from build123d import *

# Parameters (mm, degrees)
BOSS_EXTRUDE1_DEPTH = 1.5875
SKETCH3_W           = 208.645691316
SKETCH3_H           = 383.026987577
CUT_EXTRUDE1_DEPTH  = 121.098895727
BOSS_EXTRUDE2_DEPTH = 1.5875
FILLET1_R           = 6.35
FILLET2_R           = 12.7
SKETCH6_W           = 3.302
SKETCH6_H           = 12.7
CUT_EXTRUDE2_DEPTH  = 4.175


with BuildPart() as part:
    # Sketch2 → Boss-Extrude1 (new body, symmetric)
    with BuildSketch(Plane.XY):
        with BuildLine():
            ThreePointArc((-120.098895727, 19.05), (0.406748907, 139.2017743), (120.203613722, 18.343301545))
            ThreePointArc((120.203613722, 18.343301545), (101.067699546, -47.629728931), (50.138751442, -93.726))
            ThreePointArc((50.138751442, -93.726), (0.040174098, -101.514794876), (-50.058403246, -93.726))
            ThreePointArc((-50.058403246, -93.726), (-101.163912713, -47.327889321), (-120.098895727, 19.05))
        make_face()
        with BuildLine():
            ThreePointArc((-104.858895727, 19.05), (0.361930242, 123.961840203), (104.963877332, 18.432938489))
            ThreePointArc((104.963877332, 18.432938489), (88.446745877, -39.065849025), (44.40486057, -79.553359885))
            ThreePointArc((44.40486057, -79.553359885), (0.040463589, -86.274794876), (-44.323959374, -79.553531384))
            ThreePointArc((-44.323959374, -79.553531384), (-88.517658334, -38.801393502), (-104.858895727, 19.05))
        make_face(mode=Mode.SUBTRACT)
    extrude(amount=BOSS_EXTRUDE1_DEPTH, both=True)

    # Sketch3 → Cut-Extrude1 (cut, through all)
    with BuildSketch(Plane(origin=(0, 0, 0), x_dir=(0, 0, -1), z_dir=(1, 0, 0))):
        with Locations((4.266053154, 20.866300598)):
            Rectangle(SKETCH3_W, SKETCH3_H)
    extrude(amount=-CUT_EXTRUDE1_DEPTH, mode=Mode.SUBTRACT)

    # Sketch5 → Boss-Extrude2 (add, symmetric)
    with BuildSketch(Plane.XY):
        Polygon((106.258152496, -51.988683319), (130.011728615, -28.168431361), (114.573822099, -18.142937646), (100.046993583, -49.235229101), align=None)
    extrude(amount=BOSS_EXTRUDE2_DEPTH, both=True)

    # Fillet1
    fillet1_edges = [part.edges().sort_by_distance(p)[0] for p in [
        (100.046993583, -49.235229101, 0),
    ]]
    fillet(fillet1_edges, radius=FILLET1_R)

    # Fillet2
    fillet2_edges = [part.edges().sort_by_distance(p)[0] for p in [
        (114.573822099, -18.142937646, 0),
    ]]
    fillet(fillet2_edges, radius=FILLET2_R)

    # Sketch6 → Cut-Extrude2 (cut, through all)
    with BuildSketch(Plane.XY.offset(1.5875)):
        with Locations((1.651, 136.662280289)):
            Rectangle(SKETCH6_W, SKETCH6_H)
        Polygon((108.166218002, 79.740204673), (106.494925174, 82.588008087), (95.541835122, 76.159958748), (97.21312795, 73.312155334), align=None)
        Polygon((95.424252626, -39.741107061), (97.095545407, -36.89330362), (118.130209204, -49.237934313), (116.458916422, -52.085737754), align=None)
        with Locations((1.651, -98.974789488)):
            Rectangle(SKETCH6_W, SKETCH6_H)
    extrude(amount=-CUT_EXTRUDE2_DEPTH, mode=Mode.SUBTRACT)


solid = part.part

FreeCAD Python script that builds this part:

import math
import FreeCAD as App
import Part
import Sketcher
from FreeCAD import Vector
Q = App.Units.Quantity


def edges_at(feature, points):
    """Names of the edges that pass closest to the given points."""
    edges = feature.Shape.Edges
    near = lambda p: min(range(len(edges)), key=lambda i: edges[i].distToShape(Part.Vertex(*p))[0])
    return sorted({f"Edge{near(p) + 1}" for p in points})


def add_polygon(sketch, points):
    """Adds a closed chain of lines whose ends are joined by coincident constraints."""
    first, n = sketch.GeometryCount, len(points)
    for a, b in zip(points, points[1:] + points[:1]):
        sketch.addGeometry(Part.LineSegment(App.Vector(*a, 0), App.Vector(*b, 0)), False)
    for i in range(n):
        sketch.addConstraint(Sketcher.Constraint("Coincident", first + i, 2, first + (i + 1) % n, 1))

doc = App.newDocument("Part")
params = doc.addObject("Spreadsheet::Sheet", "Params")
for row, (alias, value) in enumerate([
    ("pad1_length", "0.125 in"),
    ("pad2_length", "0.125 in"),
    ("fillet_radius", "0.25 in"),
    ("fillet2_radius", "0.5 in"),
    ("sketch4_height", "0.5 in"),
    ("sketch4_length", "0.5 in"),
    ("sketch4_width", "0.13 in"),
    ("sketch4_length2", "0.13 in"),
], start=1):
    params.set(f"A{row}", alias)
    params.set(f"B{row}", "=" + value)
    params.setAlias(f"B{row}", alias)

body = doc.addObject("PartDesign::Body", "Body")

sketch1 = body.newObject("Sketcher::SketchObject", "Sketch")
sketch1.AttachmentSupport = (doc.getObject("XY_Plane"), [""])
sketch1.MapMode = "FlatFace"
sketch1.addGeometry(Part.ArcOfCircle(Part.Circle(Vector(0, 19, 0), Vector(0, 0, 1), 120), math.radians(0), math.radians(180)), False)
sketch1.addGeometry(Part.ArcOfCircle(Part.Circle(Vector(6, 19, 0), Vector(0, 0, 1), 126), math.radians(-180), math.radians(-116)), False)
sketch1.addGeometry(Part.ArcOfCircle(Part.Circle(Vector(0, 63, 0), Vector(0, 0, 1), 165), math.radians(-108), math.radians(-72)), False)
sketch1.addGeometry(Part.ArcOfCircle(Part.Circle(Vector(-6, 19, 0), Vector(0, 0, 1), 126), math.radians(-64), math.radians(0)), False)
sketch1.addGeometry(Part.ArcOfCircle(Part.Circle(Vector(0, 19, 0), Vector(0, 0, 1), 105), math.radians(0), math.radians(180)), False)
sketch1.addGeometry(Part.ArcOfCircle(Part.Circle(Vector(-6, 19, 0), Vector(0, 0, 1), 111), math.radians(-63), math.radians(0)), False)
sketch1.addGeometry(Part.ArcOfCircle(Part.Circle(Vector(0, 63, 0), Vector(0, 0, 1), 150), math.radians(-107), math.radians(-73)), False)
sketch1.addGeometry(Part.ArcOfCircle(Part.Circle(Vector(6, 19, 0), Vector(0, 0, 1), 111), math.radians(-180), math.radians(-117)), False)
sketch1.addConstraint(Sketcher.Constraint("Tangent", 0, 2, 1, 1))
sketch1.addConstraint(Sketcher.Constraint("Coincident", 1, 2, 2, 1))
sketch1.addConstraint(Sketcher.Constraint("Coincident", 2, 2, 3, 1))
sketch1.addConstraint(Sketcher.Constraint("Tangent", 3, 2, 0, 1))
sketch1.addConstraint(Sketcher.Constraint("Tangent", 4, 1, 5, 2))
sketch1.addConstraint(Sketcher.Constraint("Coincident", 5, 1, 6, 2))
sketch1.addConstraint(Sketcher.Constraint("Coincident", 6, 1, 7, 2))
sketch1.addConstraint(Sketcher.Constraint("Tangent", 7, 1, 4, 2))
sketch1.addConstraint(Sketcher.Constraint("Coincident", 4, 3, 0, 3))
sketch1.addConstraint(Sketcher.Constraint("Coincident", 5, 3, 3, 3))
sketch1.addConstraint(Sketcher.Constraint("Coincident", 6, 3, 2, 3))
sketch1.addConstraint(Sketcher.Constraint("Coincident", 7, 3, 1, 3))
sketch1.addConstraint(Sketcher.Constraint("Horizontal", 0, 3, 1, 3))
sketch1.addConstraint(Sketcher.Constraint("Horizontal", 1, 2, 2, 2))
sketch1.addConstraint(Sketcher.Constraint("DistanceY", -1, 1, 2, 3, Q("2.5 in")))
sketch1.addConstraint(Sketcher.Constraint("DistanceX", 0, 2, 7, 1, Q("0.6 in")))
sketch1.addConstraint(Sketcher.Constraint("DistanceY", -1, 1, 0, 3, Q("0.75 in")))
sketch1.addConstraint(Sketcher.Constraint("DistanceY", 1, 2, -1, 1, Q("3.69 in")))
sketch1.addConstraint(Sketcher.Constraint("Radius", 0, Q("120.152294 mm")))
sketch1.addConstraint(Sketcher.Constraint("Radius", 1, Q("125.813627 mm")))
sketch1.addConstraint(Sketcher.Constraint("Radius", 2, Q("165.014795 mm")))
sketch1.addConstraint(Sketcher.Constraint("Radius", 3, Q("125.846414 mm")))
sketch1.addConstraint(Sketcher.Constraint("Radius", 6, Q("149.774795 mm")))
sketch1.addConstraint(Sketcher.Constraint("DistanceX", -1, 1, 0, 3, Q("0.053398 mm")))
pad1 = body.newObject("PartDesign::Pad", "Pad")
pad1.Profile = sketch1
pad1.setExpression("Length", "Params.pad1_length")
pad1.Midplane = True

sketch2 = body.newObject("Sketcher::SketchObject", "Sketch001")
sketch2.AttachmentSupport = (doc.getObject("YZ_Plane"), [""])
sketch2.MapMode = "FlatFace"
add_polygon(sketch2, [(212, 100), (-171, 100), (-171, -109), (212, -109)])
sketch2.addConstraint(Sketcher.Constraint("Horizontal", 0))
sketch2.addConstraint(Sketcher.Constraint("Vertical", 1))
sketch2.addConstraint(Sketcher.Constraint("Horizontal", 2))
sketch2.addConstraint(Sketcher.Constraint("Vertical", 3))
sketch2.addConstraint(Sketcher.Constraint("DistanceY", 1, 2, 1, 1, Q("208.645691 mm")))
sketch2.addConstraint(Sketcher.Constraint("DistanceY", 1, 2, -1, 1, Q("108.588899 mm")))
sketch2.addConstraint(Sketcher.Constraint("DistanceX", 0, 2, 0, 1, Q("383.026988 mm")))
sketch2.addConstraint(Sketcher.Constraint("DistanceX", 0, 2, -1, 1, Q("170.647193 mm")))
pocket1 = body.newObject("PartDesign::Pocket", "Pocket")
pocket1.Profile = sketch2
pocket1.Type = "ThroughAll"

sketch3 = body.newObject("Sketcher::SketchObject", "Sketch002")
sketch3.AttachmentSupport = (doc.getObject("XY_Plane"), [""])
sketch3.MapMode = "FlatFace"
add_polygon(sketch3, [(106, -52), (130, -28), (115, -18), (100, -49)])
sketch3.addConstraint(Sketcher.Constraint("Angle", 1, Q("147 deg")))
sketch3.addConstraint(Sketcher.Constraint("Distance", 2, Q("34.318498 mm")))
sketch3.addConstraint(Sketcher.Constraint("Distance", 0, Q("33.639809 mm")))
sketch3.addConstraint(Sketcher.Constraint("DistanceX", -1, 1, 0, 2, Q("130.011729 mm")))
sketch3.addConstraint(Sketcher.Constraint("DistanceY", 0, 2, -1, 1, Q("28.168431 mm")))
sketch3.addConstraint(Sketcher.Constraint("DistanceY", 2, 2, -1, 1, Q("49.235229 mm")))
sketch3.addConstraint(Sketcher.Constraint("DistanceX", 2, 2, 1, 2, Q("14.526829 mm")))
sketch3.addConstraint(Sketcher.Constraint("DistanceX", 2, 2, 3, 2, Q("6.211159 mm")))
pad2 = body.newObject("PartDesign::Pad", "Pad001")
pad2.Profile = sketch3
pad2.setExpression("Length", "Params.pad2_length")
pad2.Midplane = True
doc.recompute()

fillet = body.newObject("PartDesign::Fillet", "Fillet")
fillet.Base = (pad2, edges_at(pad2, [(100.047, -49.235, 0)]))
fillet.setExpression("Radius", "Params.fillet_radius")
doc.recompute()

fillet2 = body.newObject("PartDesign::Fillet", "Fillet001")
fillet2.Base = (fillet, edges_at(fillet, [(114.574, -18.143, 0)]))
fillet2.setExpression("Radius", "Params.fillet2_radius")

sketch4 = body.newObject("Sketcher::SketchObject", "Sketch003")
sketch4.AttachmentSupport = (doc.getObject("XY_Plane"), [""])
sketch4.MapMode = "FlatFace"
sketch4.AttachmentOffset = App.Placement(Vector(0, 0, 0.0625 * 25.4), App.Rotation())
add_polygon(sketch4, [(0, 143), (0, 130.3), (3.3, 130.3), (3.3, 143)])
add_polygon(sketch4, [(108.2, 79.7), (106.5, 82.6), (95.5, 76.2), (97.2, 73.3)])
add_polygon(sketch4, [(97.1, -36.9), (95.4, -39.7), (116.5, -52.1), (118.1, -49.2)])
add_polygon(sketch4, [(0, -92.6), (0, -105.3), (3.3, -105.3), (3.3, -92.6)])
sketch4.addConstraint(Sketcher.Constraint("Vertical", 0))
sketch4.addConstraint(Sketcher.Constraint("Horizontal", 1))
sketch4.addConstraint(Sketcher.Constraint("Vertical", 2))
sketch4.addConstraint(Sketcher.Constraint("Horizontal", 3))
sketch4.addConstraint(Sketcher.Constraint("Vertical", 12))
sketch4.addConstraint(Sketcher.Constraint("Horizontal", 13))
sketch4.addConstraint(Sketcher.Constraint("Vertical", 14))
sketch4.addConstraint(Sketcher.Constraint("Horizontal", 15))
sketch4.addConstraint(Sketcher.Constraint("PointOnObject", 0, 2, -2))
sketch4.addConstraint(Sketcher.Constraint("PointOnObject", 12, 2, -2))
sketch4.addConstraint(Sketcher.Constraint("Perpendicular", 4, 5))
sketch4.addConstraint(Sketcher.Constraint("Perpendicular", 5, 6))
sketch4.addConstraint(Sketcher.Constraint("Perpendicular", 6, 7))
sketch4.addConstraint(Sketcher.Constraint("Perpendicular", 8, 9))
sketch4.addConstraint(Sketcher.Constraint("Perpendicular", 9, 10))
sketch4.addConstraint(Sketcher.Constraint("Perpendicular", 10, 11))
sketch4.addConstraint(Sketcher.Constraint("Vertical", 2, 2, 13, 2))
sketch4.addConstraint(Sketcher.Constraint("Equal", 2, 12))
sketch4.addConstraint(Sketcher.Constraint("Equal", 6, 8))
sketch4.addConstraint(Sketcher.Constraint("DistanceY", 0, 2, 0, 1, Q("0.5 in")))
sketch4.addConstraint(Sketcher.Constraint("Distance", 5, Q("0.5 in")))
sketch4.addConstraint(Sketcher.Constraint("DistanceX", 1, 1, 1, 2, Q("0.13 in")))
sketch4.addConstraint(Sketcher.Constraint("Distance", 4, Q("0.13 in")))
sketch4.addConstraint(Sketcher.Constraint("DistanceX", 7, 2, 9, 2, Q("8.292698 mm")))
sketch4.addConstraint(Sketcher.Constraint("DistanceY", -1, 1, 0, 2, Q("130.31228 mm")))
sketch4.addConstraint(Sketcher.Constraint("DistanceY", -1, 1, 4, 2, Q("82.588008 mm")))
sketch4.addConstraint(Sketcher.Constraint("DistanceY", -1, 1, 5, 2, Q("76.159959 mm")))
sketch4.addConstraint(Sketcher.Constraint("DistanceX", -1, 1, 7, 2, Q("108.166218 mm")))
sketch4.addConstraint(Sketcher.Constraint("DistanceX", -1, 1, 10, 2, Q("118.130209 mm")))
sketch4.addConstraint(Sketcher.Constraint("DistanceY", 12, 2, -1, 1, Q("105.324789 mm")))
sketch4.addConstraint(Sketcher.Constraint("DistanceY", 8, 2, 7, 2, Q("119.481312 mm")))
sketch4.addConstraint(Sketcher.Constraint("DistanceY", 9, 2, 8, 2, Q("12.344631 mm")))
sketch4.setExpression("Constraints[35]", "Params.sketch4_height")
sketch4.setExpression("Constraints[36]", "Params.sketch4_length")
sketch4.setExpression("Constraints[37]", "Params.sketch4_width")
sketch4.setExpression("Constraints[38]", "Params.sketch4_length2")
pocket2 = body.newObject("PartDesign::Pocket", "Pocket001")
pocket2.Profile = sketch4
pocket2.Type = "ThroughAll"

doc.recompute()
